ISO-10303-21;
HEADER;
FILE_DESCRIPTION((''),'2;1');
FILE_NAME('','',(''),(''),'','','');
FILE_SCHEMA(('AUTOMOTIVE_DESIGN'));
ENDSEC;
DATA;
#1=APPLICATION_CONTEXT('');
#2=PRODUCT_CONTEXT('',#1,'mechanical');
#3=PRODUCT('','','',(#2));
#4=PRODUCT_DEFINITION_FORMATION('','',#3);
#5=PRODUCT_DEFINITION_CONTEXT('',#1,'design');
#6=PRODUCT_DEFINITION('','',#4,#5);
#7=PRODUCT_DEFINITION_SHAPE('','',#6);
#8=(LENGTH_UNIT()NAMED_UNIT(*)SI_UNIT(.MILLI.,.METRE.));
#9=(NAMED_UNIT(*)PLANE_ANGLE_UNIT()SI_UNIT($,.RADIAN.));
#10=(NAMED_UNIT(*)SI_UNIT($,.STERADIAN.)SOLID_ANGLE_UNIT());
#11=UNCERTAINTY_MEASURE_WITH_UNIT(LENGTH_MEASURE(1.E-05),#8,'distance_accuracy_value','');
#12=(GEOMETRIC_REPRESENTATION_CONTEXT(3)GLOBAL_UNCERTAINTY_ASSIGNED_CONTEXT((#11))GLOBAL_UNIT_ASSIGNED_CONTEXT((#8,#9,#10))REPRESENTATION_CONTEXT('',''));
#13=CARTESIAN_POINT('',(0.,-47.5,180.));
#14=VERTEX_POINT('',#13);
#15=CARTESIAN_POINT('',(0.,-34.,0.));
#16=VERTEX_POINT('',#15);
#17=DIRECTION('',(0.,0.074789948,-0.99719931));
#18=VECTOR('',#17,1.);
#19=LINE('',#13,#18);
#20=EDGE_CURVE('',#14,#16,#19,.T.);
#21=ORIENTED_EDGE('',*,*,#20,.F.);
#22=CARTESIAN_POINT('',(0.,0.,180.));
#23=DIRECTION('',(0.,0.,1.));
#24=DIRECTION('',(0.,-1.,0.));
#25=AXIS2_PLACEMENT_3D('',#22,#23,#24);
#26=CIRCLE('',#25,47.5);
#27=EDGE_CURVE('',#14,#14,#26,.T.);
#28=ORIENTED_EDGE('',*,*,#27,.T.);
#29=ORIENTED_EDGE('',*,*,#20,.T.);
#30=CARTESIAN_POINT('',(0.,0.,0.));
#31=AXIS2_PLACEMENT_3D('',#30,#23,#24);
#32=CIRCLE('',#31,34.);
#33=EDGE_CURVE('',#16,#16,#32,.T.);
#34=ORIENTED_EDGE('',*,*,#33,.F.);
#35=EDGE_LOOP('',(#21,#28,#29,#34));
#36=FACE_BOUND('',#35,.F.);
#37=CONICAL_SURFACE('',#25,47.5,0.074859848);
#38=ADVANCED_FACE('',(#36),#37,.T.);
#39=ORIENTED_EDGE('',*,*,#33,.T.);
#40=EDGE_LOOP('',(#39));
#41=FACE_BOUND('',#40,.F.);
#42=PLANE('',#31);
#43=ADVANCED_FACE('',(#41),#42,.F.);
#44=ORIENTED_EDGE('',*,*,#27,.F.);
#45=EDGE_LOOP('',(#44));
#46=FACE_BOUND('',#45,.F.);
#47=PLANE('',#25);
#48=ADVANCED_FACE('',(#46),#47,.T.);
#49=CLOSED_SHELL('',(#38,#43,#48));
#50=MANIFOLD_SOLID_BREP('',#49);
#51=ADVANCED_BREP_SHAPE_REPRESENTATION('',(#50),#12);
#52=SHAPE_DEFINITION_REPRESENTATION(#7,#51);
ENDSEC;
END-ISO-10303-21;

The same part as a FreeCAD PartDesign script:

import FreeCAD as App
import Part
import Sketcher
Q = App.Units.Quantity


def add_polygon(sketch, points):
    """Adds a closed chain of lines whose ends are joined by coincident constraints."""
    first, n = sketch.GeometryCount, len(points)
    for a, b in zip(points, points[1:] + points[:1]):
        sketch.addGeometry(Part.LineSegment(App.Vector(*a, 0), App.Vector(*b, 0)), False)
    for i in range(n):
        sketch.addConstraint(Sketcher.Constraint("Coincident", first + i, 2, first + (i + 1) % n, 1))

doc = App.newDocument("Part")
body = doc.addObject("PartDesign::Body", "Body")

# Sketch on YZ plane
sketch1 = doc.addObject("Sketcher::SketchObject", "Sketch")
body.addObject(sketch1)
sketch1.AttachmentSupport = (doc.YZ_Plane, [""])
sketch1.MapMode = "FlatFace"
add_polygon(sketch1, [(0, 180), (-47.5, 180), (-34, 0), (0, 0)])  # lines 0-3
sketch1.addConstraint(Sketcher.Constraint("Horizontal", 0))
sketch1.addConstraint(Sketcher.Constraint("Horizontal", 2))
sketch1.addConstraint(Sketcher.Constraint("Vertical", 3))
sketch1.addConstraint(Sketcher.Constraint("Coincident", 2, 2, -1, 1))
sketch1.addConstraint(Sketcher.Constraint("DistanceX", 2, 1, 2, 2, Q("34 mm")))
sketch1.addConstraint(Sketcher.Constraint("DistanceY", 3, 1, 3, 2, Q("180 mm")))
sketch1.addConstraint(Sketcher.Constraint("DistanceX", 0, 2, 0, 1, Q("47.5 mm")))
revolution = doc.addObject("PartDesign::Revolution", "Revolution")
body.addObject(revolution)
revolution.Profile = sketch1
revolution.ReferenceAxis = (sketch1, ["V_Axis"])
revolution.Angle = 360

doc.recompute()
